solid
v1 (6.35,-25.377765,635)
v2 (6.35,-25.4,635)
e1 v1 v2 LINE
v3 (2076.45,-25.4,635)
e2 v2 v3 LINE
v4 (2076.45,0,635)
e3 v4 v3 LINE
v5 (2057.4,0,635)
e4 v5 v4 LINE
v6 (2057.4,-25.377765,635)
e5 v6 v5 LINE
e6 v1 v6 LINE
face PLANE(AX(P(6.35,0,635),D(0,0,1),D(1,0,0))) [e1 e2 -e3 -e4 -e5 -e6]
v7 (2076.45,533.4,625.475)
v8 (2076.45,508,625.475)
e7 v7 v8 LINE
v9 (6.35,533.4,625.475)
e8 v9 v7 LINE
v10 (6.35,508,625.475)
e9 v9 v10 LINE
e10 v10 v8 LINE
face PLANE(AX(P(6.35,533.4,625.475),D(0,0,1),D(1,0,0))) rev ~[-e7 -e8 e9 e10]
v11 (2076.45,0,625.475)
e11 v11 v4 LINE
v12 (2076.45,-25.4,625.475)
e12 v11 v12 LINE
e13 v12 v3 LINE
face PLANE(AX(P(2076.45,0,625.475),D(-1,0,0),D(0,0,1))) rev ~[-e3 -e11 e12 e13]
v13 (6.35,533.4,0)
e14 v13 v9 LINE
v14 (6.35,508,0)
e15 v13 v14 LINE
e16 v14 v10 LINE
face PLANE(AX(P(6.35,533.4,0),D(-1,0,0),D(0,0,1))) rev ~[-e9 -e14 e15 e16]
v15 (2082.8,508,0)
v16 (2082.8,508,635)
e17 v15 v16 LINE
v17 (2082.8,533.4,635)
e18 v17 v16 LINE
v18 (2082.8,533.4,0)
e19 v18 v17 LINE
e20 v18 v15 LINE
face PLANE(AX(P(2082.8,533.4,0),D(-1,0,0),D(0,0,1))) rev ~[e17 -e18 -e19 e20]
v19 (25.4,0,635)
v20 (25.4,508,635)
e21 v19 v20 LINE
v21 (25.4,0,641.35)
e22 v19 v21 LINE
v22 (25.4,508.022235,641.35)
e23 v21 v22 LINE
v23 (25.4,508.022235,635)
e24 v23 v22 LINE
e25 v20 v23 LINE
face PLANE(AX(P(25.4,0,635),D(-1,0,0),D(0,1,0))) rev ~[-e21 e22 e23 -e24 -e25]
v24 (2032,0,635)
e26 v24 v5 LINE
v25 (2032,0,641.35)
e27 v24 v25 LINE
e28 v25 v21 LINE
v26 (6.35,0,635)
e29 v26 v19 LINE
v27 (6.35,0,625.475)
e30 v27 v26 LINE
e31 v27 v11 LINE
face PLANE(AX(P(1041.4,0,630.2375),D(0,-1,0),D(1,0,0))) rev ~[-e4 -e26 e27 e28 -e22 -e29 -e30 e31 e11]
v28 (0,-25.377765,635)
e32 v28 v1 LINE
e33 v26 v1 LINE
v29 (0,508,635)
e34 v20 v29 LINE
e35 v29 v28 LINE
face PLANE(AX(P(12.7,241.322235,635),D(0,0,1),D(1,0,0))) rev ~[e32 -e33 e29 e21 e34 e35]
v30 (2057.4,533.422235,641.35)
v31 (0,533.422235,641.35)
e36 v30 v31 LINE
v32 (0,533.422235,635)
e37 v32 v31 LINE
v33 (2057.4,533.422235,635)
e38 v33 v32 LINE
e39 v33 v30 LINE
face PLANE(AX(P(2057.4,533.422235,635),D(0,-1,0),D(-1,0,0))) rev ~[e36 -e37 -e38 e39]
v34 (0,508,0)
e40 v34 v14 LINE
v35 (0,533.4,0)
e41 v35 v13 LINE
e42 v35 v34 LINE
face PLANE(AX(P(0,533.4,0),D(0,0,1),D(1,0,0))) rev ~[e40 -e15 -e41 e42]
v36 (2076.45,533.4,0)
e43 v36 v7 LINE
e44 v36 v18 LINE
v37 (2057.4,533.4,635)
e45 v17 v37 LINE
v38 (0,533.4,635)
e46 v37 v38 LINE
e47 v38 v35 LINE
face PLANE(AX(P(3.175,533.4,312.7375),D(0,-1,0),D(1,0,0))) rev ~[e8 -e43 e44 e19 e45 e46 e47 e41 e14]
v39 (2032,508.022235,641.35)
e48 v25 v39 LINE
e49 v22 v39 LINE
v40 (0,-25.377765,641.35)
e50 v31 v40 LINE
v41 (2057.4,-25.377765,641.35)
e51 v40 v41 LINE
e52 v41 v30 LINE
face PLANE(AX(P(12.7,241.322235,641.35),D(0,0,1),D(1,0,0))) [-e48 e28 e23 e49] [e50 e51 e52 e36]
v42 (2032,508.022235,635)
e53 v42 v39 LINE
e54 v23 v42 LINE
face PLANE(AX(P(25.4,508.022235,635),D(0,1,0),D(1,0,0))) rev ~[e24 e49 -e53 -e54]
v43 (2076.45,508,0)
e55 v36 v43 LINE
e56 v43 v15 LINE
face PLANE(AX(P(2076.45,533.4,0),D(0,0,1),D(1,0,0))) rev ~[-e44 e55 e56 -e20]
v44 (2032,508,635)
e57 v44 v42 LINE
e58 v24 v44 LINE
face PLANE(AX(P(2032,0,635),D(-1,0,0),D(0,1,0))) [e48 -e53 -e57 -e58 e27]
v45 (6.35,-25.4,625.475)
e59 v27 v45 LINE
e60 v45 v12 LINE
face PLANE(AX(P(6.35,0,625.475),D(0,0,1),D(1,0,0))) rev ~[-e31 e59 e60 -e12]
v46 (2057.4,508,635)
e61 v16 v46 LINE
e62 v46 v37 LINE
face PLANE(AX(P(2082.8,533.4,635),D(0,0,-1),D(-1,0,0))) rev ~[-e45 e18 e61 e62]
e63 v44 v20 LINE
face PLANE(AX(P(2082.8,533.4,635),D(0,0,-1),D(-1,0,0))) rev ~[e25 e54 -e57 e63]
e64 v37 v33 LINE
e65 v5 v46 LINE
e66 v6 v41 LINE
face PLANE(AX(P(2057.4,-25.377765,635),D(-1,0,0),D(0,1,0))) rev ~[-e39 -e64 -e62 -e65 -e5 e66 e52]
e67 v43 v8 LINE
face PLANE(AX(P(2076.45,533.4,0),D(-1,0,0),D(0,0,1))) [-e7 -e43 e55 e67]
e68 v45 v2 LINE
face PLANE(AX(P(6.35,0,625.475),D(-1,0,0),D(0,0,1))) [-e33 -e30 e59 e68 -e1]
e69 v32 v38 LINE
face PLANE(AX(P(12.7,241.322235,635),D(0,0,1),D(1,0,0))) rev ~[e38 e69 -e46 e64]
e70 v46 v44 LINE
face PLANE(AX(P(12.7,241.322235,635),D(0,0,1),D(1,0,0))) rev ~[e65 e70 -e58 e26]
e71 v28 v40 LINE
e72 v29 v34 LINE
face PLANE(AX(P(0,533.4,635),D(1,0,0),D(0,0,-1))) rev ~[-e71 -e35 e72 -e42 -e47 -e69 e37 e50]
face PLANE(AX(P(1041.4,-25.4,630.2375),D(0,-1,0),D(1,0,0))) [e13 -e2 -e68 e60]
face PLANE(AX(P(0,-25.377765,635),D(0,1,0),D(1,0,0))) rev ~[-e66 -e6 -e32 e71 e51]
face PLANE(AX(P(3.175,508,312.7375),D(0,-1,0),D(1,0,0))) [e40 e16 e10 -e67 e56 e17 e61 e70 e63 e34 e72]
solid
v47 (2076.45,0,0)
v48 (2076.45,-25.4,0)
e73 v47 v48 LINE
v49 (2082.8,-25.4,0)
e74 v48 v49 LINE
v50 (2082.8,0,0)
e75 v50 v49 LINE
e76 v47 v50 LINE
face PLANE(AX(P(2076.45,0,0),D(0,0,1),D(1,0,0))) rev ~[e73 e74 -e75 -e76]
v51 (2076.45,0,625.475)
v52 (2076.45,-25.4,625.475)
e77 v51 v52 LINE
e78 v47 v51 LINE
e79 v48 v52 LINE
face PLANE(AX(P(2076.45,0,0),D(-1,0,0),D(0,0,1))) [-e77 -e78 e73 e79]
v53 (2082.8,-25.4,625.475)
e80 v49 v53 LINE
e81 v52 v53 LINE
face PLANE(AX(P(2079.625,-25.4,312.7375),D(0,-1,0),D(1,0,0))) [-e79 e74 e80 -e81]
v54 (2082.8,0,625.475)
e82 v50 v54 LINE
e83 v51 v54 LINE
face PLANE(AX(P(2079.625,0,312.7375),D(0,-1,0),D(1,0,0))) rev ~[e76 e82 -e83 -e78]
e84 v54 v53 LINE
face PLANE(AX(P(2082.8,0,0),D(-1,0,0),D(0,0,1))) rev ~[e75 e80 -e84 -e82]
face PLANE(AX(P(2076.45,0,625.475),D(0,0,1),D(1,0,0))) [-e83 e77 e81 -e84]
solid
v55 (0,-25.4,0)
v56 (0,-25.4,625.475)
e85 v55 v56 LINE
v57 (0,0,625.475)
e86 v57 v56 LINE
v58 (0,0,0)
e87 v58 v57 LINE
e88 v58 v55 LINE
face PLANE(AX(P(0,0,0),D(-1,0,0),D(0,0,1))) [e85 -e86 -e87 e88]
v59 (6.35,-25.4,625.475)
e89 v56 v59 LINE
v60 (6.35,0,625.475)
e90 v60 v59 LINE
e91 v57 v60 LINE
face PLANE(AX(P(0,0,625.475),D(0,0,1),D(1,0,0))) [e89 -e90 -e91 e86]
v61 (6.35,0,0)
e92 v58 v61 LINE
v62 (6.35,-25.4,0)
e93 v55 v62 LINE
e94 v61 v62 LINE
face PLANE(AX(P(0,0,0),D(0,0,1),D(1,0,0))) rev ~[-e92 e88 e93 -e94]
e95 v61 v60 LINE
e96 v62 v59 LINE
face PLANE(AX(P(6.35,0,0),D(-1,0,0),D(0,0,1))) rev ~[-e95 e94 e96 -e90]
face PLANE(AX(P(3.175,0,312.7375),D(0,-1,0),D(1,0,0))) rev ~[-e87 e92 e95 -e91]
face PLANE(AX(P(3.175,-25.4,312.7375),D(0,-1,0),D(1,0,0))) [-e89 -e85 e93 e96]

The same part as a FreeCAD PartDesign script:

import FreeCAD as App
import Part
import Sketcher
from FreeCAD import Vector
Q = App.Units.Quantity

doc = App.newDocument("Part")
params = doc.addObject("Spreadsheet::Sheet", "Params")
for row, (alias, value) in enumerate([
    ("sketch1_width", "81.5 in"),
    ("sketch1_height", "0.375 in"),
    ("pad1_length", "1 in"),
    ("sketch2_width", "81 in"),
    ("sketch2_width2", "79 in"),
    ("sketch2_height", "22 in"),
    ("pad2_length", "0.25 in"),
    ("sketch3_width", "82 in"),
    ("sketch3_height", "25 in"),
    ("sketch3_width2", "81.5 in"),
    ("sketch3_height2", "24.625 in"),
    ("pad3_length", "1 in"),
    ("sketch4_width", "0.25 in"),
    ("sketch4_height", "24.625 in"),
    ("pad4_length", "1 in"),
    ("sketch5_width", "0.25 in"),
    ("sketch5_height", "24.625 in"),
    ("pad5_length", "1 in"),
], start=1):
    params.set(f"A{row}", alias)
    params.set(f"B{row}", "=" + value)
    params.setAlias(f"B{row}", alias)

body = doc.addObject("PartDesign::Body", "Body")

# Sketch on XZ plane
sketch1 = doc.addObject("Sketcher::SketchObject", "Sketch")
body.addObject(sketch1)
sketch1.AttachmentSupport = (doc.XZ_Plane, [""])
sketch1.MapMode = "FlatFace"
sketch1.addGeometry(Part.LineSegment(Vector(6, 635, 0), Vector(6, 625, 0)), False)
sketch1.addGeometry(Part.LineSegment(Vector(6, 625, 0), Vector(2076, 625, 0)), False)
sketch1.addGeometry(Part.LineSegment(Vector(2076, 625, 0), Vector(2076, 635, 0)), False)
sketch1.addGeometry(Part.LineSegment(Vector(2076, 635, 0), Vector(6, 635, 0)), False)
sketch1.addConstraint(Sketcher.Constraint("Coincident", 0, 2, 1, 1))
sketch1.addConstraint(Sketcher.Constraint("Coincident", 1, 2, 2, 1))
sketch1.addConstraint(Sketcher.Constraint("Coincident", 2, 2, 3, 1))
sketch1.addConstraint(Sketcher.Constraint("Coincident", 3, 2, 0, 1))
sketch1.addConstraint(Sketcher.Constraint("Vertical", 0))
sketch1.addConstraint(Sketcher.Constraint("Horizontal", 1))
sketch1.addConstraint(Sketcher.Constraint("Vertical", 2))
sketch1.addConstraint(Sketcher.Constraint("Horizontal", 3))
sketch1.addConstraint(Sketcher.Constraint("DistanceX", 1, 1, 1, 2, Q("81.5 in")))
sketch1.addConstraint(Sketcher.Constraint("DistanceY", -1, 1, 2, 2, Q("25 in")))
sketch1.addConstraint(Sketcher.Constraint("DistanceY", 0, 2, 0, 1, Q("0.375 in")))
sketch1.addConstraint(Sketcher.Constraint("DistanceX", -1, 1, 0, 2, Q("0.25 in")))
sketch1.setExpression("Constraints[8]", "Params.sketch1_width")
sketch1.setExpression("Constraints[10]", "Params.sketch1_height")
pad1 = doc.addObject("PartDesign::Pad", "Pad")
body.addObject(pad1)
pad1.Profile = sketch1
pad1.setExpression("Length", "Params.pad1_length")

# Sketch on XY plane
sketch2 = doc.addObject("Sketcher::SketchObject", "Sketch001")
body.addObject(sketch2)
sketch2.AttachmentSupport = (doc.XY_Plane, [""])
sketch2.MapMode = "FlatFace"
sketch2.AttachmentOffset = App.Placement(Vector(0, 0, 25 * 25.4), App.Rotation())
sketch2.addGeometry(Part.LineSegment(Vector(2057, -25, 0), Vector(2057, 533, 0)), False)
sketch2.addGeometry(Part.LineSegment(Vector(2057, 533, 0), Vector(0, 533, 0)), False)
sketch2.addGeometry(Part.LineSegment(Vector(0, 533, 0), Vector(0, -25, 0)), False)
sketch2.addGeometry(Part.LineSegment(Vector(0, -25, 0), Vector(2057, -25, 0)), False)
sketch2.addGeometry(Part.LineSegment(Vector(2032, 508, 0), Vector(2032, 0, 0)), False)
sketch2.addGeometry(Part.LineSegment(Vector(2032, 0, 0), Vector(25, 0, 0)), False)
sketch2.addGeometry(Part.LineSegment(Vector(25, 0, 0), Vector(25, 508, 0)), False)
sketch2.addGeometry(Part.LineSegment(Vector(25, 508, 0), Vector(2032, 508, 0)), False)
sketch2.addConstraint(Sketcher.Constraint("Coincident", 0, 2, 1, 1))
sketch2.addConstraint(Sketcher.Constraint("Coincident", 1, 2, 2, 1))
sketch2.addConstraint(Sketcher.Constraint("Coincident", 2, 2, 3, 1))
sketch2.addConstraint(Sketcher.Constraint("Coincident", 3, 2, 0, 1))
sketch2.addConstraint(Sketcher.Constraint("Coincident", 4, 2, 5, 1))
sketch2.addConstraint(Sketcher.Constraint("Coincident", 5, 2, 6, 1))
sketch2.addConstraint(Sketcher.Constraint("Coincident", 6, 2, 7, 1))
sketch2.addConstraint(Sketcher.Constraint("Coincident", 7, 2, 4, 1))
sketch2.addConstraint(Sketcher.Constraint("Vertical", 0))
sketch2.addConstraint(Sketcher.Constraint("Horizontal", 1))
sketch2.addConstraint(Sketcher.Constraint("Vertical", 2))
sketch2.addConstraint(Sketcher.Constraint("Horizontal", 3))
sketch2.addConstraint(Sketcher.Constraint("Vertical", 4))
sketch2.addConstraint(Sketcher.Constraint("Horizontal", 5))
sketch2.addConstraint(Sketcher.Constraint("Vertical", 6))
sketch2.addConstraint(Sketcher.Constraint("Horizontal", 7))
sketch2.addConstraint(Sketcher.Constraint("PointOnObject", 1, 2, -2))
sketch2.addConstraint(Sketcher.Constraint("PointOnObject", 4, 2, -1))
sketch2.addConstraint(Sketcher.Constraint("DistanceX", 1, 2, 1, 1, Q("81 in")))
sketch2.addConstraint(Sketcher.Constraint("DistanceX", 5, 2, 5, 1, Q("79 in")))
sketch2.addConstraint(Sketcher.Constraint("DistanceY", 0, 1, 0, 2, Q("22 in")))
sketch2.addConstraint(Sketcher.Constraint("DistanceX", -1, 1, 4, 2, Q("80 in")))
sketch2.addConstraint(Sketcher.Constraint("DistanceY", 6, 2, 1, 2, Q("1 in")))
sketch2.addConstraint(Sketcher.Constraint("DistanceY", 4, 2, 4, 1, 508.022235))
sketch2.setExpression("Constraints[18]", "Params.sketch2_width")
sketch2.setExpression("Constraints[19]", "Params.sketch2_width2")
sketch2.setExpression("Constraints[20]", "Params.sketch2_height")
pad2 = doc.addObject("PartDesign::Pad", "Pad001")
body.addObject(pad2)
pad2.Profile = sketch2
pad2.setExpression("Length", "Params.pad2_length")

# Sketch on XZ plane
sketch3 = doc.addObject("Sketcher::SketchObject", "Sketch002")
body.addObject(sketch3)
sketch3.AttachmentSupport = (doc.XZ_Plane, [""])
sketch3.MapMode = "FlatFace"
sketch3.AttachmentOffset = App.Placement(Vector(0, 0, -21 * 25.4), App.Rotation())
sketch3.addGeometry(Part.LineSegment(Vector(0, 0, 0), Vector(6, 0, 0)), False)
sketch3.addGeometry(Part.LineSegment(Vector(6, 0, 0), Vector(6, 625, 0)), False)
sketch3.addGeometry(Part.LineSegment(Vector(6, 625, 0), Vector(2076, 625, 0)), False)
sketch3.addGeometry(Part.LineSegment(Vector(2076, 625, 0), Vector(2076, 0, 0)), False)
sketch3.addGeometry(Part.LineSegment(Vector(2076, 0, 0), Vector(2083, 0, 0)), False)
sketch3.addGeometry(Part.LineSegment(Vector(2083, 0, 0), Vector(2083, 635, 0)), False)
sketch3.addGeometry(Part.LineSegment(Vector(2083, 635, 0), Vector(0, 635, 0)), False)
sketch3.addGeometry(Part.LineSegment(Vector(0, 635, 0), Vector(0, 0, 0)), False)
sketch3.addConstraint(Sketcher.Constraint("Coincident", 0, 2, 1, 1))
sketch3.addConstraint(Sketcher.Constraint("Coincident", 1, 2, 2, 1))
sketch3.addConstraint(Sketcher.Constraint("Coincident", 2, 2, 3, 1))
sketch3.addConstraint(Sketcher.Constraint("Coincident", 3, 2, 4, 1))
sketch3.addConstraint(Sketcher.Constraint("Coincident", 4, 2, 5, 1))
sketch3.addConstraint(Sketcher.Constraint("Coincident", 5, 2, 6, 1))
sketch3.addConstraint(Sketcher.Constraint("Coincident", 6, 2, 7, 1))
sketch3.addConstraint(Sketcher.Constraint("Coincident", 7, 2, 0, 1))
sketch3.addConstraint(Sketcher.Constraint("Horizontal", 0))
sketch3.addConstraint(Sketcher.Constraint("Vertical", 1))
sketch3.addConstraint(Sketcher.Constraint("Horizontal", 2))
sketch3.addConstraint(Sketcher.Constraint("Vertical", 3))
sketch3.addConstraint(Sketcher.Constraint("Horizontal", 4))
sketch3.addConstraint(Sketcher.Constraint("Vertical", 5))
sketch3.addConstraint(Sketcher.Constraint("Horizontal", 6))
sketch3.addConstraint(Sketcher.Constraint("Vertical", 7))
sketch3.addConstraint(Sketcher.Constraint("Coincident", 7, 2, -1, 1))
sketch3.addConstraint(Sketcher.Constraint("PointOnObject", 3, 2, -1))
sketch3.addConstraint(Sketcher.Constraint("Equal", 0, 4))
sketch3.addConstraint(Sketcher.Constraint("DistanceX", 6, 2, 6, 1, Q("82 in")))
sketch3.addConstraint(Sketcher.Constraint("DistanceY", 5, 1, 5, 2, Q("25 in")))
sketch3.addConstraint(Sketcher.Constraint("DistanceX", 2, 1, 2, 2, Q("81.5 in")))
sketch3.addConstraint(Sketcher.Constraint("DistanceY", 1, 1, 1, 2, Q("24.625 in")))
sketch3.setExpression("Constraints[19]", "Params.sketch3_width")
sketch3.setExpression("Constraints[20]", "Params.sketch3_height")
sketch3.setExpression("Constraints[21]", "Params.sketch3_width2")
sketch3.setExpression("Constraints[22]", "Params.sketch3_height2")
pad3 = doc.addObject("PartDesign::Pad", "Pad002")
body.addObject(pad3)
pad3.Profile = sketch3
pad3.setExpression("Length", "Params.pad3_length")
body2 = doc.addObject("PartDesign::Body", "Body001")

# Sketch on XZ plane
sketch4 = doc.addObject("Sketcher::SketchObject", "Sketch003")
body2.addObject(sketch4)
sketch4.AttachmentSupport = (doc.getObject("XZ_Plane001"), [""])
sketch4.MapMode = "FlatFace"
sketch4.addGeometry(Part.LineSegment(Vector(0, 625, 0), Vector(0, 0, 0)), False)
sketch4.addGeometry(Part.LineSegment(Vector(0, 0, 0), Vector(6, 0, 0)), False)
sketch4.addGeometry(Part.LineSegment(Vector(6, 0, 0), Vector(6, 625, 0)), False)
sketch4.addGeometry(Part.LineSegment(Vector(6, 625, 0), Vector(0, 625, 0)), False)
sketch4.addConstraint(Sketcher.Constraint("Coincident", 0, 2, 1, 1))
sketch4.addConstraint(Sketcher.Constraint("Coincident", 1, 2, 2, 1))
sketch4.addConstraint(Sketcher.Constraint("Coincident", 2, 2, 3, 1))
sketch4.addConstraint(Sketcher.Constraint("Coincident", 3, 2, 0, 1))
sketch4.addConstraint(Sketcher.Constraint("Vertical", 0))
sketch4.addConstraint(Sketcher.Constraint("Horizontal", 1))
sketch4.addConstraint(Sketcher.Constraint("Vertical", 2))
sketch4.addConstraint(Sketcher.Constraint("Horizontal", 3))
sketch4.addConstraint(Sketcher.Constraint("Coincident", 0, 2, -1, 1))
sketch4.addConstraint(Sketcher.Constraint("DistanceX", 1, 1, 1, 2, Q("0.25 in")))
sketch4.addConstraint(Sketcher.Constraint("DistanceY", 0, 2, 0, 1, Q("24.625 in")))
sketch4.setExpression("Constraints[9]", "Params.sketch4_width")
sketch4.setExpression("Constraints[10]", "Params.sketch4_height")
pad4 = doc.addObject("PartDesign::Pad", "Pad003")
body2.addObject(pad4)
pad4.Profile = sketch4
pad4.setExpression("Length", "Params.pad4_length")
body3 = doc.addObject("PartDesign::Body", "Body002")

# Sketch on XZ plane
sketch5 = doc.addObject("Sketcher::SketchObject", "Sketch004")
body3.addObject(sketch5)
sketch5.AttachmentSupport = (doc.getObject("XZ_Plane002"), [""])
sketch5.MapMode = "FlatFace"
sketch5.addGeometry(Part.LineSegment(Vector(2076, 625, 0), Vector(2076, 0, 0)), False)
sketch5.addGeometry(Part.LineSegment(Vector(2076, 0, 0), Vector(2083, 0, 0)), False)
sketch5.addGeometry(Part.LineSegment(Vector(2083, 0, 0), Vector(2083, 625, 0)), False)
sketch5.addGeometry(Part.LineSegment(Vector(2083, 625, 0), Vector(2076, 625, 0)), False)
sketch5.addConstraint(Sketcher.Constraint("Coincident", 0, 2, 1, 1))
sketch5.addConstraint(Sketcher.Constraint("Coincident", 1, 2, 2, 1))
sketch5.addConstraint(Sketcher.Constraint("Coincident", 2, 2, 3, 1))
sketch5.addConstraint(Sketcher.Constraint("Coincident", 3, 2, 0, 1))
sketch5.addConstraint(Sketcher.Constraint("Vertical", 0))
sketch5.addConstraint(Sketcher.Constraint("Horizontal", 1))
sketch5.addConstraint(Sketcher.Constraint("Vertical", 2))
sketch5.addConstraint(Sketcher.Constraint("Horizontal", 3))
sketch5.addConstraint(Sketcher.Constraint("PointOnObject", 0, 2, -1))
sketch5.addConstraint(Sketcher.Constraint("DistanceX", -1, 1, 1, 2, Q("82 in")))
sketch5.addConstraint(Sketcher.Constraint("DistanceX", 1, 1, 1, 2, Q("0.25 in")))
sketch5.addConstraint(Sketcher.Constraint("DistanceY", 0, 2, 0, 1, Q("24.625 in")))
sketch5.setExpression("Constraints[10]", "Params.sketch5_width")
sketch5.setExpression("Constraints[11]", "Params.sketch5_height")
pad5 = doc.addObject("PartDesign::Pad", "Pad004")
body3.addObject(pad5)
pad5.Profile = sketch5
pad5.setExpression("Length", "Params.pad5_length")

doc.recompute()
